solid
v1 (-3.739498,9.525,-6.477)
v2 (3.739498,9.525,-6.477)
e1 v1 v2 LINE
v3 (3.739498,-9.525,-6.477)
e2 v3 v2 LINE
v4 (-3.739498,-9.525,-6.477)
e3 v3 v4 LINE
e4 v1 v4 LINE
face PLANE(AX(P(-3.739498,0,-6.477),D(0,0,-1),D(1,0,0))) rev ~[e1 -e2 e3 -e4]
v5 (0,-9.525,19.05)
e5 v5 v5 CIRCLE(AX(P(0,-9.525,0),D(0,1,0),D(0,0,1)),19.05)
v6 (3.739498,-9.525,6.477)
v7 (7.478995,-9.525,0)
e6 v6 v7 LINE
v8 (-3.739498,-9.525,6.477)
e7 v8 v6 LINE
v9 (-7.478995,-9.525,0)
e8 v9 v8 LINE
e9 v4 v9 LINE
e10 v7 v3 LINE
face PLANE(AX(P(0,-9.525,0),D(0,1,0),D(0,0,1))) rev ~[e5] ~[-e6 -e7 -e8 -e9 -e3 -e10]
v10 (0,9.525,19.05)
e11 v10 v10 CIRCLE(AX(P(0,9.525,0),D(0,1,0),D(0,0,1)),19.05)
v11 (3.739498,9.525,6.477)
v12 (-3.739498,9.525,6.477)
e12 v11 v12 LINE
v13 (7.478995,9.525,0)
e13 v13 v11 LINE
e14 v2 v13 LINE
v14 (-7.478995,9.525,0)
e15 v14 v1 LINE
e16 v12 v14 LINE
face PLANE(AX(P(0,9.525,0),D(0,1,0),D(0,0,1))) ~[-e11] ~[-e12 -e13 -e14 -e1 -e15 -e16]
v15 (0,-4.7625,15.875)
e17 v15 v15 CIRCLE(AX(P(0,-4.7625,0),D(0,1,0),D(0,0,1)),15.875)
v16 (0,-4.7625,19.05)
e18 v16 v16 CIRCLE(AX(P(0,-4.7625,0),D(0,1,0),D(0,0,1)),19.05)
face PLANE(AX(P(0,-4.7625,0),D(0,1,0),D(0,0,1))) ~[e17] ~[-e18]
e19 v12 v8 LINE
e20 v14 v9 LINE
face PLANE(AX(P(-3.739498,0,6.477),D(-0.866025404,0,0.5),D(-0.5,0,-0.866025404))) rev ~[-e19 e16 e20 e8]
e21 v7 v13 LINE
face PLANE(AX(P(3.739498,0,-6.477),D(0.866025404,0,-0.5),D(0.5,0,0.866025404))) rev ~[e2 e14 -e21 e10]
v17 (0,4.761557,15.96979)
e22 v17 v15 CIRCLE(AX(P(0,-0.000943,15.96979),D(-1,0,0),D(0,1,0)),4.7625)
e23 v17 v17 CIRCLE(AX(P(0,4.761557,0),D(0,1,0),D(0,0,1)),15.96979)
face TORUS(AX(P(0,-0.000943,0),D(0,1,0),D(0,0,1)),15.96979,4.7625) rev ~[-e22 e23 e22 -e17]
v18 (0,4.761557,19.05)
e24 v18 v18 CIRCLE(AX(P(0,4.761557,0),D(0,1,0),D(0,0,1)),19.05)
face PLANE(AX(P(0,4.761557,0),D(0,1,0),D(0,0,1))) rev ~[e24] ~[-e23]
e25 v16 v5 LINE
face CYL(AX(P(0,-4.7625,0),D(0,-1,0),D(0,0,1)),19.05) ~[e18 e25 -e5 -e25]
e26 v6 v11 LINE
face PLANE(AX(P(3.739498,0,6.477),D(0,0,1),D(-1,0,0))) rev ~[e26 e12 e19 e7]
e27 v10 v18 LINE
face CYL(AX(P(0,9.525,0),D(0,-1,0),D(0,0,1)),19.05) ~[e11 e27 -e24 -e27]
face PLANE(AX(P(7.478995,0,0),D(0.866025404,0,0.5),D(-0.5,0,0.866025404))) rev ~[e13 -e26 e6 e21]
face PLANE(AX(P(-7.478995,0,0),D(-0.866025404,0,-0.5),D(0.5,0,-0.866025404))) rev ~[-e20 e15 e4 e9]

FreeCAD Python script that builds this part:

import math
import FreeCAD as App
import Part
import Sketcher
Q = App.Units.Quantity


def add_polygon(sketch, points):
    """Adds a closed chain of lines whose ends are joined by coincident constraints."""
    first, n = sketch.GeometryCount, len(points)
    for a, b in zip(points, points[1:] + points[:1]):
        sketch.addGeometry(Part.LineSegment(App.Vector(*a, 0), App.Vector(*b, 0)), False)
    for i in range(n):
        sketch.addConstraint(Sketcher.Constraint("Coincident", first + i, 2, first + (i + 1) % n, 1))

doc = App.newDocument("Part")
body = doc.addObject("PartDesign::Body", "Body")

sketch1 = body.newObject("Sketcher::SketchObject", "Sketch")
sketch1.AttachmentSupport = (doc.getObject("YZ_Plane"), [""])
sketch1.MapMode = "FlatFace"
sketch1.addGeometry(Part.LineSegment(App.Vector(-4.7625, 15.875, 0), App.Vector(-4.7625, 19.05, 0)), False)
sketch1.addGeometry(Part.LineSegment(App.Vector(-4.7625, 19.05, 0), App.Vector(-9.525, 19.05, 0)), False)
sketch1.addGeometry(Part.LineSegment(App.Vector(-9.525, 19.05, 0), App.Vector(-9.525, 0, 0)), False)
sketch1.addGeometry(Part.LineSegment(App.Vector(-9.525, 0, 0), App.Vector(9.525, 0, 0)), False)
sketch1.addGeometry(Part.LineSegment(App.Vector(9.525, 0, 0), App.Vector(9.525, 19.05, 0)), False)
sketch1.addGeometry(Part.LineSegment(App.Vector(9.525, 19.05, 0), App.Vector(4.761557, 19.05, 0)), False)
sketch1.addGeometry(Part.LineSegment(App.Vector(4.761557, 19.05, 0), App.Vector(4.761557, 15.96979, 0)), False)
sketch1.addGeometry(Part.ArcOfCircle(Part.Circle(App.Vector(-0.000943, 15.96979, 0), App.Vector(0, 0, 1), 4.7625), math.radians(-178.859544), math.radians(0)), False)
sketch1.addConstraint(Sketcher.Constraint("Coincident", 0, 2, 1, 1))
sketch1.addConstraint(Sketcher.Constraint("Coincident", 1, 2, 2, 1))
sketch1.addConstraint(Sketcher.Constraint("Coincident", 2, 2, 3, 1))
sketch1.addConstraint(Sketcher.Constraint("Coincident", 3, 2, 4, 1))
sketch1.addConstraint(Sketcher.Constraint("Coincident", 4, 2, 5, 1))
sketch1.addConstraint(Sketcher.Constraint("Coincident", 5, 2, 6, 1))
sketch1.addConstraint(Sketcher.Constraint("Tangent", 6, 2, 7, 2))
sketch1.addConstraint(Sketcher.Constraint("Coincident", 7, 1, 0, 1))
sketch1.addConstraint(Sketcher.Constraint("Vertical", 0))
sketch1.addConstraint(Sketcher.Constraint("Horizontal", 1))
sketch1.addConstraint(Sketcher.Constraint("Vertical", 2))
sketch1.addConstraint(Sketcher.Constraint("Horizontal", 3))
sketch1.addConstraint(Sketcher.Constraint("Vertical", 4))
sketch1.addConstraint(Sketcher.Constraint("Horizontal", 5))
sketch1.addConstraint(Sketcher.Constraint("Vertical", 6))
sketch1.addConstraint(Sketcher.Constraint("Symmetric", 2, 2, 3, 2, -1, 1))
sketch1.addConstraint(Sketcher.Constraint("Horizontal", 1, 2, 4, 2))
sketch1.addConstraint(Sketcher.Constraint("Equal", 3, 2))
sketch1.addConstraint(Sketcher.Constraint("Radius", 7, Q("0.1875 in")))
sketch1.addConstraint(Sketcher.Constraint("DistanceX", 3, 1, 3, 2, Q("0.75 in")))
sketch1.addConstraint(Sketcher.Constraint("DistanceX", 1, 2, 1, 1, Q("0.1875 in")))
sketch1.addConstraint(Sketcher.Constraint("DistanceY", 0, 1, 0, 2, Q("0.125 in")))
sketch1.addConstraint(Sketcher.Constraint("DistanceY", 6, 2, 6, 1, 3.08021))
revolution = body.newObject("PartDesign::Revolution", "Revolution")
revolution.Profile = sketch1
revolution.ReferenceAxis = (sketch1, ["H_Axis"])
revolution.Angle = 360

sketch2 = body.newObject("Sketcher::SketchObject", "Sketch001")
sketch2.AttachmentSupport = (doc.getObject("XZ_Plane"), [""])
sketch2.MapMode = "FlatFace"
add_polygon(sketch2, [(3.739498, 6.477), (-3.739498, 6.477), (-7.478995, 0), (-3.739498, -6.477), (3.739498, -6.477), (7.478995, 0)])
sketch2.addConstraint(Sketcher.Constraint("Horizontal", 0))
sketch2.addConstraint(Sketcher.Constraint("Horizontal", 3))
sketch2.addConstraint(Sketcher.Constraint("Symmetric", 0, 2, 3, 2, -1, 1))
sketch2.addConstraint(Sketcher.Constraint("Symmetric", 1, 2, 4, 2, -1, 1))
sketch2.addConstraint(Sketcher.Constraint("PointOnObject", 1, 2, -1))
sketch2.addConstraint(Sketcher.Constraint("Parallel", 2, 5))
sketch2.addConstraint(Sketcher.Constraint("Vertical", 0, 2, 2, 2))
sketch2.addConstraint(Sketcher.Constraint("Angle", 1, Q("-120 deg")))
sketch2.addConstraint(Sketcher.Constraint("DistanceY", 2, 2, 0, 2, Q("0.51 in")))
sketch2.addConstraint(Sketcher.Constraint("DistanceX", 0, 2, 0, 1, 7.478995))
pocket1 = body.newObject("PartDesign::Pocket", "Pocket")
pocket1.Profile = sketch2
pocket1.Length = Q("1 in")
pocket1.Midplane = True

doc.recompute()
